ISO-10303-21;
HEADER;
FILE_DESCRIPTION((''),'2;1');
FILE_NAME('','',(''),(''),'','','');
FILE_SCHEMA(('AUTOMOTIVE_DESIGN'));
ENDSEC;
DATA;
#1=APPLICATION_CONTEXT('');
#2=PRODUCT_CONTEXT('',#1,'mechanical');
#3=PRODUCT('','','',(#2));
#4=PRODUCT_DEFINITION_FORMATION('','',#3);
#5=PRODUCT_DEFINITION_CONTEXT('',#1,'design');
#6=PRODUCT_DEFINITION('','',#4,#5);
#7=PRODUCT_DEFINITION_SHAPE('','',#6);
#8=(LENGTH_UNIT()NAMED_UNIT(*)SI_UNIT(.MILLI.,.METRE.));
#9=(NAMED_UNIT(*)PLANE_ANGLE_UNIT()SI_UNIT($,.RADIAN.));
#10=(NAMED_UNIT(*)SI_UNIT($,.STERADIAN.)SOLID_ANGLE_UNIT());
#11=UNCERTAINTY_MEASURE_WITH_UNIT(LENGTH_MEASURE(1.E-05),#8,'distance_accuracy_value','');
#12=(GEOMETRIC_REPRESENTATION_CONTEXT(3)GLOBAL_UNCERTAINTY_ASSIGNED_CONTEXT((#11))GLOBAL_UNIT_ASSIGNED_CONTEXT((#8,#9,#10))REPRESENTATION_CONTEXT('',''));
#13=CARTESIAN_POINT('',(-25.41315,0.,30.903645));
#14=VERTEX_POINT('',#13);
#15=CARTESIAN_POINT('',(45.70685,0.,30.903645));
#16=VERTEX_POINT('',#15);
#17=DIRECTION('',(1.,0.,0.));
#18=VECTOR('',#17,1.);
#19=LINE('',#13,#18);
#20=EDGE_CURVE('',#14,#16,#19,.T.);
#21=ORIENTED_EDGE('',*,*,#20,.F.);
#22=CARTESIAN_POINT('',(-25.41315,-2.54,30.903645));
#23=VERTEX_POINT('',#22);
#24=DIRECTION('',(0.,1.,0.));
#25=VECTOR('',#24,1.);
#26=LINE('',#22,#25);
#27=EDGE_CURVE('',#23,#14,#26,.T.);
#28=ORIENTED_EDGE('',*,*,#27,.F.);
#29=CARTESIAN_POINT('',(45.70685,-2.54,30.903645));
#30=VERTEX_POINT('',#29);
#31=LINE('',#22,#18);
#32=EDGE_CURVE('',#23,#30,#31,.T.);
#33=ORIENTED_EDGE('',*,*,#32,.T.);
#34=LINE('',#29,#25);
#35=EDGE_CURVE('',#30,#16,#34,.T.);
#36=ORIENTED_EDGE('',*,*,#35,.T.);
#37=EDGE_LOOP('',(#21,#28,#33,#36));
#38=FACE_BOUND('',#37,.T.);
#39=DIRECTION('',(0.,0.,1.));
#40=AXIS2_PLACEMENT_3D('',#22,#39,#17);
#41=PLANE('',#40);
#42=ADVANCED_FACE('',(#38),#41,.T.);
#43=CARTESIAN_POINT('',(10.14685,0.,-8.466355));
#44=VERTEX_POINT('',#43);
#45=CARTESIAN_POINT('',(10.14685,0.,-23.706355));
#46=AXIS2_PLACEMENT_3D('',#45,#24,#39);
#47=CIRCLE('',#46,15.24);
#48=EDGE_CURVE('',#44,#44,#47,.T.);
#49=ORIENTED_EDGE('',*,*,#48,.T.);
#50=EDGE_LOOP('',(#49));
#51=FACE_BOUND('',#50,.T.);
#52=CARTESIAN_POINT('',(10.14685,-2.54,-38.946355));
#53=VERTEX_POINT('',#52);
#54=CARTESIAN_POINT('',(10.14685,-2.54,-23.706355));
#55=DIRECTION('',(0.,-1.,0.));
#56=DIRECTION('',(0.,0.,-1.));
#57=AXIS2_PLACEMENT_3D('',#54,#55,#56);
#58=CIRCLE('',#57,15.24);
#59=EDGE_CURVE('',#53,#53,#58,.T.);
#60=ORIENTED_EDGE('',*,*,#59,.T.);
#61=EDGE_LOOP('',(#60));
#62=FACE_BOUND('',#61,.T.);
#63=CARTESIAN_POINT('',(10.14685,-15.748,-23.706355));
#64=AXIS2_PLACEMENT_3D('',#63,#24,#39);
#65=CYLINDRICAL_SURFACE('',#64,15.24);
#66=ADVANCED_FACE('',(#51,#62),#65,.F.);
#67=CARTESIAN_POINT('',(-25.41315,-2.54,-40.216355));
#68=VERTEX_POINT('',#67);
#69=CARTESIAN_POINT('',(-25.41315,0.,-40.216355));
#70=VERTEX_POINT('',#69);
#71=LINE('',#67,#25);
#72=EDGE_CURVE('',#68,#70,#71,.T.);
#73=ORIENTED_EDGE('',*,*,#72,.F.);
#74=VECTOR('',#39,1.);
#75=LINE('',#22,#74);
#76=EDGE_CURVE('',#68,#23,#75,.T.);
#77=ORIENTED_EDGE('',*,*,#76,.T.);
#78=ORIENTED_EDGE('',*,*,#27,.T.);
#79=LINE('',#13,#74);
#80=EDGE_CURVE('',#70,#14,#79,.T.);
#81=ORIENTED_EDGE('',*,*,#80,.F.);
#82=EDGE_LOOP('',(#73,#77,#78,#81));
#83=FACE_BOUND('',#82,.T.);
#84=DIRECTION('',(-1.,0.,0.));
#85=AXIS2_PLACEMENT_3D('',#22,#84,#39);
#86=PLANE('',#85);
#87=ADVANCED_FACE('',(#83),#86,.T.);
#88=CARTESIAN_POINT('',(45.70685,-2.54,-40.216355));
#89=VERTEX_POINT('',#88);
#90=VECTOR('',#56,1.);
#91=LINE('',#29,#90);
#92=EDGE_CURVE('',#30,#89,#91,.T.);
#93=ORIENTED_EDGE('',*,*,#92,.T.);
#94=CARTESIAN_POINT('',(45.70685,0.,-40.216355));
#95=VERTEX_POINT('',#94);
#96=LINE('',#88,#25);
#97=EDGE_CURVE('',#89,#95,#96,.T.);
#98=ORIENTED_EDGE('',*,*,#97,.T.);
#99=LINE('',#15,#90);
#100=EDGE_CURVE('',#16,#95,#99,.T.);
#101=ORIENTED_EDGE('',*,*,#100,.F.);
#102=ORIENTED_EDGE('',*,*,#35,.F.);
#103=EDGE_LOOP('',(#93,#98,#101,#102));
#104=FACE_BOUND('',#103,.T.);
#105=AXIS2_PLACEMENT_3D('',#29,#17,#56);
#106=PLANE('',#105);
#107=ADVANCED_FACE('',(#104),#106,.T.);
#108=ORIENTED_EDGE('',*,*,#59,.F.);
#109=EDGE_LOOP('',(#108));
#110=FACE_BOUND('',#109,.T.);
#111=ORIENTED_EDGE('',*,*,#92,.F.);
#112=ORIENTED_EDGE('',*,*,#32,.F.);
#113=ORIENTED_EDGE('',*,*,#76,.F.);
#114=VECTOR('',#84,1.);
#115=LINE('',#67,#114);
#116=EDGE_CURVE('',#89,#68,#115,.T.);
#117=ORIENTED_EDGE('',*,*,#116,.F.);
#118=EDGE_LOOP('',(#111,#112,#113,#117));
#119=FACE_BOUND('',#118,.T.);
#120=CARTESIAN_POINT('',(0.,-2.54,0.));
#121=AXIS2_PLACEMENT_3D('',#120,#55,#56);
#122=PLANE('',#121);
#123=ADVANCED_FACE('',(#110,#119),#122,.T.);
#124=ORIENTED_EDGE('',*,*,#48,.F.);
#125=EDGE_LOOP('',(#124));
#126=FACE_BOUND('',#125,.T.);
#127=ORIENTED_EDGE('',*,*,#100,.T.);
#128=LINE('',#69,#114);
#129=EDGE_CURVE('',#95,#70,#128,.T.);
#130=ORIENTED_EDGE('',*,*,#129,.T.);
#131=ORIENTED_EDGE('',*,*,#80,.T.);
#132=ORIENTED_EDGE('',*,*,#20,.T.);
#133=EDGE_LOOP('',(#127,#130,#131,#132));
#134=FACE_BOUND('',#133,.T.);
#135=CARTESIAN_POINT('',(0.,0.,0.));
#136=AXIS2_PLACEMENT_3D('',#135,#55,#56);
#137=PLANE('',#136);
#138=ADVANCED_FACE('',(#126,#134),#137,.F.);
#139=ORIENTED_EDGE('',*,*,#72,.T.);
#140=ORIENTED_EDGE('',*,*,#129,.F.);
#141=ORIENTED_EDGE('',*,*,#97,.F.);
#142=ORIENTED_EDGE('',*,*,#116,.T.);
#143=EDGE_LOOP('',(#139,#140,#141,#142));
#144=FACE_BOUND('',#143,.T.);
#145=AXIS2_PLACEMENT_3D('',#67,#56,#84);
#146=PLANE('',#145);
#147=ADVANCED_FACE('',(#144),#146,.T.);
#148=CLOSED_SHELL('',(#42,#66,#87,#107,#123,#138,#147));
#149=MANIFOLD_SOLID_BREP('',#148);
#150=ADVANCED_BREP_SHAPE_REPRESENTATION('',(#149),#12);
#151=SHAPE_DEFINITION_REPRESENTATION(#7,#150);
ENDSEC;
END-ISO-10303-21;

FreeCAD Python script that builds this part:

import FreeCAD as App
import Part
import Sketcher

V = App.Vector
Q = App.Units.Quantity

doc = App.newDocument("Part")
body = doc.addObject("PartDesign::Body", "Body")

# Sketch on XZ plane
sketch1 = body.newObject("Sketcher::SketchObject", "Sketch")
sketch1.AttachmentSupport = (doc.getObject("XZ_Plane"), [""])
sketch1.MapMode = "FlatFace"
sketch1.addGeometry(Part.LineSegment(V(-25, -40, 0), V(-25, 31, 0)), False)
sketch1.addGeometry(Part.LineSegment(V(-25, 31, 0), V(46, 31, 0)), False)
sketch1.addGeometry(Part.LineSegment(V(46, 31, 0), V(46, -40, 0)), False)
sketch1.addGeometry(Part.LineSegment(V(46, -40, 0), V(-25, -40, 0)), False)
sketch1.addConstraint(Sketcher.Constraint("Coincident", 0, 2, 1, 1))
sketch1.addConstraint(Sketcher.Constraint("Coincident", 1, 2, 2, 1))
sketch1.addConstraint(Sketcher.Constraint("Coincident", 2, 2, 3, 1))
sketch1.addConstraint(Sketcher.Constraint("Coincident", 3, 2, 0, 1))
sketch1.addConstraint(Sketcher.Constraint("Vertical", 0))
sketch1.addConstraint(Sketcher.Constraint("Horizontal", 1))
sketch1.addConstraint(Sketcher.Constraint("Vertical", 2))
sketch1.addConstraint(Sketcher.Constraint("Horizontal", 3))
sketch1.addConstraint(Sketcher.Constraint("Equal", 3, 0))
sketch1.addConstraint(Sketcher.Constraint("DistanceX", 1, 1, 1, 2, Q("2.8 in")))
sketch1.addConstraint(Sketcher.Constraint("DistanceX", 0, 2, -1, 1, Q("25.41315 mm")))
sketch1.addConstraint(Sketcher.Constraint("DistanceY", -1, 1, 0, 2, Q("30.903645 mm")))
pad1 = body.newObject("PartDesign::Pad", "Pad")
pad1.Profile = sketch1
pad1.Length = Q("0.1 in")

# Sketch on XZ plane
sketch2 = body.newObject("Sketcher::SketchObject", "Sketch001")
sketch2.AttachmentSupport = (doc.getObject("XZ_Plane"), [""])
sketch2.MapMode = "FlatFace"
sketch2.addGeometry(Part.Circle(V(10, -24, 0), V(0, 0, 1), 15), False)
sketch2.addConstraint(Sketcher.Constraint("Diameter", 0, Q("1.2 in")))
sketch2.addConstraint(Sketcher.Constraint("DistanceX", -1, 1, 0, 3, Q("10.14685 mm")))
sketch2.addConstraint(Sketcher.Constraint("DistanceY", 0, 3, -1, 1, Q("23.706355 mm")))
pocket1 = body.newObject("PartDesign::Pocket", "Pocket")
pocket1.Profile = sketch2
pocket1.Length = Q("0.62 in")
pocket1.Reversed = True

doc.recompute()
